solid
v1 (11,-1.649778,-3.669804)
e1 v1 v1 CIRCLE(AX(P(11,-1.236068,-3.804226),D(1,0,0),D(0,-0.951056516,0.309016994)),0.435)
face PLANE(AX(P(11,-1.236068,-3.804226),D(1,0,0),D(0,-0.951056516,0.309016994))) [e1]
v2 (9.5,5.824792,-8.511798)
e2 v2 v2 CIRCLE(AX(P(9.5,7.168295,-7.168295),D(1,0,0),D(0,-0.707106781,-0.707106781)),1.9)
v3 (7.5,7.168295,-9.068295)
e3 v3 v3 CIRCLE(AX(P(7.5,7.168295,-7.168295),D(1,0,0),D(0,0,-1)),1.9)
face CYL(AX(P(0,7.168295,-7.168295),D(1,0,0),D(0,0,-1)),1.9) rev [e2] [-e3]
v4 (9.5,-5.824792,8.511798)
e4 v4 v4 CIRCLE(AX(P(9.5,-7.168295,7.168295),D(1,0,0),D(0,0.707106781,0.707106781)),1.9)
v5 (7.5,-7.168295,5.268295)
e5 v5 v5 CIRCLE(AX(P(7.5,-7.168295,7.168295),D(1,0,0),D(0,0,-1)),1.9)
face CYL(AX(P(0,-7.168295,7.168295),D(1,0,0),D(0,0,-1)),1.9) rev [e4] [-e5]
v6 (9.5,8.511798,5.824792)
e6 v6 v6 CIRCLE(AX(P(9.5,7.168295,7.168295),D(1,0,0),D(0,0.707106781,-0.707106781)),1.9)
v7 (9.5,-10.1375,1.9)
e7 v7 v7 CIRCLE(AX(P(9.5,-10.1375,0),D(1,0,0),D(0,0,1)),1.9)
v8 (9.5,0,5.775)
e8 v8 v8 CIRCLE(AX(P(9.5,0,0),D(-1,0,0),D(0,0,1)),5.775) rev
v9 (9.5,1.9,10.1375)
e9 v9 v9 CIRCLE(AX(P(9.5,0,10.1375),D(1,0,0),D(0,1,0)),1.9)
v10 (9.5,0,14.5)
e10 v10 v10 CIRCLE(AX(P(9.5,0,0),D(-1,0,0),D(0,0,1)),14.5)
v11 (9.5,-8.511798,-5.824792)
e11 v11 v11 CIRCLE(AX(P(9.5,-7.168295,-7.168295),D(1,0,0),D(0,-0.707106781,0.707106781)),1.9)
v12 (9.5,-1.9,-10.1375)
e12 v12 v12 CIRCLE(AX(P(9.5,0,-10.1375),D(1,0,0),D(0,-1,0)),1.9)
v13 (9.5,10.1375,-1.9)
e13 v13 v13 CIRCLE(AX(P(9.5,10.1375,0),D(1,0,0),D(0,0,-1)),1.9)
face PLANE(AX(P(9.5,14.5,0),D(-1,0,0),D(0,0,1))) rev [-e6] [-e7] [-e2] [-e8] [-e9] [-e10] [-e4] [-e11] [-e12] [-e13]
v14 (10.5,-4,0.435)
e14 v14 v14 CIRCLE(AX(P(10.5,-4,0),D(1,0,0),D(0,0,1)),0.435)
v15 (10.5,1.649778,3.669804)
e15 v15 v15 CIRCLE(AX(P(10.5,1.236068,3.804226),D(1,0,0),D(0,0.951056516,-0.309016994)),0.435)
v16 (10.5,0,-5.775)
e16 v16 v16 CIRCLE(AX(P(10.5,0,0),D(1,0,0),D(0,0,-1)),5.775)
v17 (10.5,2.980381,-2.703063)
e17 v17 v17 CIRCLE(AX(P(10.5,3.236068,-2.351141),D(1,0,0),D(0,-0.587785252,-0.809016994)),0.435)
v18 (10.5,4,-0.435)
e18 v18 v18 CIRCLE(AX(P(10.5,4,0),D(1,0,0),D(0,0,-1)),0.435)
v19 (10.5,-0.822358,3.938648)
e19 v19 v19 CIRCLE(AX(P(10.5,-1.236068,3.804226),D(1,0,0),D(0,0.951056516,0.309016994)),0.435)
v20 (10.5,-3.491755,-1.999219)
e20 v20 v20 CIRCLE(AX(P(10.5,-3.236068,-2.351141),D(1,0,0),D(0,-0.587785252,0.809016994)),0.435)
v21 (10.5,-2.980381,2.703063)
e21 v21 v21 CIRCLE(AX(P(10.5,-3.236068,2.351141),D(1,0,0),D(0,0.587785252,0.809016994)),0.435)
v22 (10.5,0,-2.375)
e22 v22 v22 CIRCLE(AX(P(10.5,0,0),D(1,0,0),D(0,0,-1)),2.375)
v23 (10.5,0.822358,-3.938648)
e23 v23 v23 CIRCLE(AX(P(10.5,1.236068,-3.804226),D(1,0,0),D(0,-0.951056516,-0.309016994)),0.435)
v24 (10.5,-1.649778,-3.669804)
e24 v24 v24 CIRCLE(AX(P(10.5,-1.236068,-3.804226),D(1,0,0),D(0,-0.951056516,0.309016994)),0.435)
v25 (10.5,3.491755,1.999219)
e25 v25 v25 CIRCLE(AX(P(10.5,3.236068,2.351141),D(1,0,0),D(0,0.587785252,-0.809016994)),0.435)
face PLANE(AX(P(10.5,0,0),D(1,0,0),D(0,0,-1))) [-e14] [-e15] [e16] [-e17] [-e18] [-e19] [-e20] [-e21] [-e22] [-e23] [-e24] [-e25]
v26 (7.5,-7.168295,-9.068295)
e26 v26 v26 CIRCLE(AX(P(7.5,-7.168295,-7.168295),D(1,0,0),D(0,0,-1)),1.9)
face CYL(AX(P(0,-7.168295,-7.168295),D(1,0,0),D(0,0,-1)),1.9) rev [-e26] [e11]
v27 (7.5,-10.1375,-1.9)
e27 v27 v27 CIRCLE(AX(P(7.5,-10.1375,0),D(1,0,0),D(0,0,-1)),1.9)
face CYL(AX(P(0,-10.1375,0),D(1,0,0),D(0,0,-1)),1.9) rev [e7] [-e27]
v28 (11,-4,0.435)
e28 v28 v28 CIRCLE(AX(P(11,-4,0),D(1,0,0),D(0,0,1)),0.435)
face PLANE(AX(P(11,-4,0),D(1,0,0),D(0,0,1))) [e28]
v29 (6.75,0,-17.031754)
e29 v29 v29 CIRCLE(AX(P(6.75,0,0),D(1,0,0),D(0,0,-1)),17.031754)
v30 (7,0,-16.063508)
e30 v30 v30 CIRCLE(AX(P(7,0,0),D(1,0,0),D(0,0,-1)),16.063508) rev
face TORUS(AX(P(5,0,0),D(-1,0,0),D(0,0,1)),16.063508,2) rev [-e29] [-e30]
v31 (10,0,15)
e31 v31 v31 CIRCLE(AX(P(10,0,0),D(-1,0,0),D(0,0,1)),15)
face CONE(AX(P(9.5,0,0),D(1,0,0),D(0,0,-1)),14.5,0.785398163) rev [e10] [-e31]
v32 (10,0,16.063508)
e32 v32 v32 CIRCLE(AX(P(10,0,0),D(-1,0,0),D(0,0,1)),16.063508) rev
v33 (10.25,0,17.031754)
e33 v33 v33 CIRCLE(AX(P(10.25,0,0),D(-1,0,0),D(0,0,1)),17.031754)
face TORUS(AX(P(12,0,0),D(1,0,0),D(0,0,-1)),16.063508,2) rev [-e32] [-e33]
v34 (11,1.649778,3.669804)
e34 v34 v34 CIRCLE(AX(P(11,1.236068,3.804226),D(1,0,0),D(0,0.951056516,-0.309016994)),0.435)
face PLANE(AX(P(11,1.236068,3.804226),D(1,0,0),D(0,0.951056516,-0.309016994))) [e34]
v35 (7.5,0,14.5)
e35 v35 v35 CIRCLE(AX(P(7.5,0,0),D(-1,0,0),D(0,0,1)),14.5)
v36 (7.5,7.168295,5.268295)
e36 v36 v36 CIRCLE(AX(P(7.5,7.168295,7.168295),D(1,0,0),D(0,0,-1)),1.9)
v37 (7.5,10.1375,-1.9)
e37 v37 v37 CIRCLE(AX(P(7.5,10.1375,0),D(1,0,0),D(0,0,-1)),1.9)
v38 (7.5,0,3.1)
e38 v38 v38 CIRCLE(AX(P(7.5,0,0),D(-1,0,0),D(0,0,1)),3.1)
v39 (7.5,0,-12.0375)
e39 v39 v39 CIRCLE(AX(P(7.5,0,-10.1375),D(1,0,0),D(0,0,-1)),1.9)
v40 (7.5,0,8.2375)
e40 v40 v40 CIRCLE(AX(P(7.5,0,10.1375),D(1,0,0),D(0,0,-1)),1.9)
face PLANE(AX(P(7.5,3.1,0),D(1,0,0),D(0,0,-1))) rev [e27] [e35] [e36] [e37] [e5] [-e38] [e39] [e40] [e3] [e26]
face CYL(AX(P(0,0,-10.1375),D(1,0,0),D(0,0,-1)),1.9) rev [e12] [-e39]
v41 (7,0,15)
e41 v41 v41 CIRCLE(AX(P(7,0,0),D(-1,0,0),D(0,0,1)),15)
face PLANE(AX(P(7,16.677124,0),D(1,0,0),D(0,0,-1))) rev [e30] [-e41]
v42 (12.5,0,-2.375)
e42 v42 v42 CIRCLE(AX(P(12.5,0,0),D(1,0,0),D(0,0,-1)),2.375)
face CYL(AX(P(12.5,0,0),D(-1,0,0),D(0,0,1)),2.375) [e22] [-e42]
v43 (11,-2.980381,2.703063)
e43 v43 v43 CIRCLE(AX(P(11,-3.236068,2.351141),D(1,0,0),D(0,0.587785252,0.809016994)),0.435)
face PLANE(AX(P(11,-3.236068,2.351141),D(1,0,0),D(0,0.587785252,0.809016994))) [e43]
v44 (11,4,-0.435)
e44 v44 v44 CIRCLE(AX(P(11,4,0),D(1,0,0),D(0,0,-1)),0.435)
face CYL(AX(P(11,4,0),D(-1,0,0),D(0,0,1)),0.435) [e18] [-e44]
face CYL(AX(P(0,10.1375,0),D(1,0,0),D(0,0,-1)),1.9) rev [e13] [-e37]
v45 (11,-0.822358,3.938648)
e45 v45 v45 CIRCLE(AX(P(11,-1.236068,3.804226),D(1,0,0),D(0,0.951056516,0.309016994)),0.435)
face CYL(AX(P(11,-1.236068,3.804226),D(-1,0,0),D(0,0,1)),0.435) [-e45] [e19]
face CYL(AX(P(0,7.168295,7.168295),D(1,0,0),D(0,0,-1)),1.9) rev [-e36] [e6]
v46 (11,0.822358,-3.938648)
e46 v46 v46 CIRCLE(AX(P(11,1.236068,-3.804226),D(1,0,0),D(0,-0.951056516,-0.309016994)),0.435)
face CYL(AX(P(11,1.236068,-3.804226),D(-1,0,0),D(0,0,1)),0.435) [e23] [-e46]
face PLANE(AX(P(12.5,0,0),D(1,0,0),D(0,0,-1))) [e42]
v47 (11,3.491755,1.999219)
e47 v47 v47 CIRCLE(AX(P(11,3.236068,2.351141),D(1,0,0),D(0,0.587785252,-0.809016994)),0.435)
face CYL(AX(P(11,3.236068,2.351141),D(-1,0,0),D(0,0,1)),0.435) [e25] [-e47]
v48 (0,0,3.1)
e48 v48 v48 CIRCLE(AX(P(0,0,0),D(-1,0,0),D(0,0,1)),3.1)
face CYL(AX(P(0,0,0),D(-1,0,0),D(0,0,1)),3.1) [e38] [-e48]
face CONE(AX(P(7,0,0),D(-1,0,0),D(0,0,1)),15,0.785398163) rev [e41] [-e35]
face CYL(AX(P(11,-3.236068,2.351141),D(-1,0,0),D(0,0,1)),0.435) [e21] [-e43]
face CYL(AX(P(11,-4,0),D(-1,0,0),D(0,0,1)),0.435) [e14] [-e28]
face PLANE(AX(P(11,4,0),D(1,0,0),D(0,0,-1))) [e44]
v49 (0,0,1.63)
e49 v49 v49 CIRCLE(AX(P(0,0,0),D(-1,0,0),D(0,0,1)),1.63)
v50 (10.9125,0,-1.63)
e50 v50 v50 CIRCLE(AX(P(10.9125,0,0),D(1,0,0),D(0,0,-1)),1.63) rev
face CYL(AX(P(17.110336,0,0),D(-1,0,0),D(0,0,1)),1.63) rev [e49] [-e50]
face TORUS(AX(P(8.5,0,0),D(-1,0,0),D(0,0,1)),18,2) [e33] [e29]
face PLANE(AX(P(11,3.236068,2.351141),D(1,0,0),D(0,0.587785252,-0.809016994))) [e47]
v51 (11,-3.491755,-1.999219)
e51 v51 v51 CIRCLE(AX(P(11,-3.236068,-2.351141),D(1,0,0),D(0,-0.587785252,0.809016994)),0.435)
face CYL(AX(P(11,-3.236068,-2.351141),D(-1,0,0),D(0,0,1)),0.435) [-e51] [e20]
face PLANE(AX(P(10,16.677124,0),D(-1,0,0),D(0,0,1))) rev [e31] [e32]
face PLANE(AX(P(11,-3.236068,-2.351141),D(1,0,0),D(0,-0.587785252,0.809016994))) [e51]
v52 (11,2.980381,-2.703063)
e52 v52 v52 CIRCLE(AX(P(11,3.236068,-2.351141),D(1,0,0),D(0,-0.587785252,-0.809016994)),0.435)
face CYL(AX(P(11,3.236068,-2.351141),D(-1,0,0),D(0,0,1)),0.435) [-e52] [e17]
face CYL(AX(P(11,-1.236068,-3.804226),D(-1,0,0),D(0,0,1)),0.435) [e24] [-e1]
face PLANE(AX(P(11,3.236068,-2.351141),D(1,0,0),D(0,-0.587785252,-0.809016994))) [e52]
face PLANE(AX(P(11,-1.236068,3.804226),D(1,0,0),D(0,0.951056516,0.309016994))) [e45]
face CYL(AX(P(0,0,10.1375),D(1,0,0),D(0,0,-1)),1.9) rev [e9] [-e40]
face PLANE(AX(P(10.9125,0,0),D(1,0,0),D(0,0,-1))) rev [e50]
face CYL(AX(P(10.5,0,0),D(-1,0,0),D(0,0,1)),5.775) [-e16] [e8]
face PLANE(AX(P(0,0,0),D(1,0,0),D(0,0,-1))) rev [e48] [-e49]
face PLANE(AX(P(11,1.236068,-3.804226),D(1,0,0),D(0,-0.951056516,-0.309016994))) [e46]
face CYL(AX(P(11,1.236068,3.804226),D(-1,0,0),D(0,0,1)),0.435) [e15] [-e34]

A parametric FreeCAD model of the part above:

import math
import FreeCAD as App
import Part
import Sketcher
from FreeCAD import Vector


def edges_at(feature, points):
    """Names of the edges that pass closest to the given points."""
    edges = feature.Shape.Edges
    near = lambda p: min(range(len(edges)), key=lambda i: edges[i].distToShape(Part.Vertex(*p))[0])
    return sorted({f"Edge{near(p) + 1}" for p in points})

doc = App.newDocument("Part")
params = doc.addObject("Spreadsheet::Sheet", "Params")
for row, (alias, value) in enumerate([
    ("sketch1_radius", "2 mm"),
    ("sketch1_width", "9.5 mm"),
    ("sketch1_width2", "7.5 mm"),
    ("sketch1_height", "14.5 mm"),
    ("sketch1_height2", "11.4 mm"),
    ("revolution_angle", "360 deg"),
    ("fillet_radius", "2 mm"),
    ("sketch2_diameter", "11.55 mm"),
    ("pad1_length", "1 mm"),
    ("sketch3_diameter", "4.75 mm"),
    ("pad2_length", "2 mm"),
    ("sketch4_diameter", "0.87 mm"),
    ("pad3_length", "0.5 mm"),
    ("sketch5_diameter", "3.8 mm"),
    ("sketch6_diameter", "3.26 mm"),
    ("pocket2_length", "10.9125 mm"),
], start=1):
    params.set(f"A{row}", alias)
    params.set(f"B{row}", "=" + value)
    params.setAlias(f"B{row}", alias)

body = doc.addObject("PartDesign::Body", "Body")

# Sketch on XY plane
sketch1 = body.newObject("Sketcher::SketchObject", "Sketch")
sketch1.AttachmentSupport = (doc.getObject("XY_Plane"), [""])
sketch1.MapMode = "FlatFace"
sketch1.addGeometry([
    Part.LineSegment(Vector(0, 0, 0), Vector(9.5, 0, 0)),  # 0
    Part.LineSegment(Vector(9.5, 0, 0), Vector(9.5, 14.5, 0)),  # 1
    Part.LineSegment(Vector(9.5, 14.5, 0), Vector(10, 15, 0)),  # 2
    Part.LineSegment(Vector(10, 15, 0), Vector(10, 16.677124, 0)),  # 3
    Part.ArcOfCircle(Part.Circle(Vector(8.5, 18, 0), Vector(0, 0, 1), 2), math.radians(-41.409622), math.radians(221.409622)),  # 4
    Part.LineSegment(Vector(7, 16.677124, 0), Vector(7, 15, 0)),  # 5
    Part.LineSegment(Vector(7, 15, 0), Vector(7.5, 14.5, 0)),  # 6
    Part.LineSegment(Vector(7.5, 14.5, 0), Vector(7.5, 3.1, 0)),  # 7
    Part.LineSegment(Vector(7.5, 3.1, 0), Vector(0, 3.1, 0)),  # 8
    Part.LineSegment(Vector(0, 3.1, 0), Vector(0, 0, 0)),  # 9
], False)
sketch1.addConstraint([
    Sketcher.Constraint("Coincident", 0, 2, 1, 1),
    Sketcher.Constraint("Coincident", 1, 2, 2, 1),
    Sketcher.Constraint("Coincident", 2, 2, 3, 1),
    Sketcher.Constraint("Coincident", 3, 2, 4, 1),
    Sketcher.Constraint("Coincident", 4, 2, 5, 1),
    Sketcher.Constraint("Coincident", 5, 2, 6, 1),
    Sketcher.Constraint("Coincident", 6, 2, 7, 1),
    Sketcher.Constraint("Coincident", 7, 2, 8, 1),
    Sketcher.Constraint("Coincident", 8, 2, 9, 1),
    Sketcher.Constraint("Coincident", 9, 2, 0, 1),
    Sketcher.Constraint("Horizontal", 0),
    Sketcher.Constraint("Vertical", 1),
    Sketcher.Constraint("Vertical", 3),
    Sketcher.Constraint("Vertical", 5),
    Sketcher.Constraint("Vertical", 7),
    Sketcher.Constraint("Horizontal", 8),
    Sketcher.Constraint("Vertical", 9),
    Sketcher.Constraint("Coincident", 9, 2, -1, 1),
    Sketcher.Constraint("Perpendicular", 2, 6),
    Sketcher.Constraint("Horizontal", 3, 2, 4, 2),
    Sketcher.Constraint("Horizontal", 2, 2, 5, 2),
    Sketcher.Constraint("Horizontal", 1, 2, 6, 2),
    Sketcher.Constraint("Equal", 2, 6),
    Sketcher.Constraint("Radius", 4, 2.0),
    Sketcher.Constraint("DistanceX", 0, 1, 0, 2, 9.5),
    Sketcher.Constraint("DistanceX", 8, 2, 8, 1, 7.5),
    Sketcher.Constraint("DistanceY", 1, 1, 1, 2, 14.5),
    Sketcher.Constraint("DistanceY", 7, 2, 7, 1, 11.4),
    Sketcher.Constraint("DistanceY", -1, 1, 4, 3, 18.0),
    Sketcher.Constraint("DistanceX", -1, 1, 2, 2, 10.0),
])
sketch1.setExpression("Constraints[23]", "Params.sketch1_radius")
sketch1.setExpression("Constraints[24]", "Params.sketch1_width")
sketch1.setExpression("Constraints[25]", "Params.sketch1_width2")
sketch1.setExpression("Constraints[26]", "Params.sketch1_height")
sketch1.setExpression("Constraints[27]", "Params.sketch1_height2")
revolution = body.newObject("PartDesign::Revolution", "Revolution")
revolution.Profile = sketch1
revolution.ReferenceAxis = (sketch1, ["H_Axis"])
revolution.setExpression("Angle", "Params.revolution_angle")
doc.recompute()

fillet = body.newObject("PartDesign::Fillet", "Fillet")
fillet.Base = (revolution, edges_at(revolution, [(7, 0, -16.677), (10, 0, -16.677)]))
fillet.setExpression("Radius", "Params.fillet_radius")

# Sketch on YZ plane
sketch2 = body.newObject("Sketcher::SketchObject", "Sketch001")
sketch2.AttachmentSupport = (doc.getObject("YZ_Plane"), [""])
sketch2.MapMode = "FlatFace"
sketch2.AttachmentOffset = App.Placement(Vector(0, 0, 9.5), App.Rotation())
sketch2.addGeometry(Part.Circle(Vector(0, 0, 0), Vector(0, 0, 1), 5.775), False)
sketch2.addConstraint([
    Sketcher.Constraint("Coincident", 0, 3, -1, 1),
    Sketcher.Constraint("Diameter", 0, 11.55),
])
sketch2.setExpression("Constraints[1]", "Params.sketch2_diameter")
pad1 = body.newObject("PartDesign::Pad", "Pad")
pad1.Profile = sketch2
pad1.setExpression("Length", "Params.pad1_length")

# Sketch on YZ plane
sketch3 = body.newObject("Sketcher::SketchObject", "Sketch002")
sketch3.AttachmentSupport = (doc.getObject("YZ_Plane"), [""])
sketch3.MapMode = "FlatFace"
sketch3.AttachmentOffset = App.Placement(Vector(0, 0, 10.5), App.Rotation())
sketch3.addGeometry(Part.Circle(Vector(0, 0, 0), Vector(0, 0, 1), 2.375), False)
sketch3.addConstraint([
    Sketcher.Constraint("Coincident", 0, 3, -1, 1),
    Sketcher.Constraint("Diameter", 0, 4.75),
])
sketch3.setExpression("Constraints[1]", "Params.sketch3_diameter")
pad2 = body.newObject("PartDesign::Pad", "Pad001")
pad2.Profile = sketch3
pad2.setExpression("Length", "Params.pad2_length")

# Sketch on YZ plane
sketch4 = body.newObject("Sketcher::SketchObject", "Sketch003")
sketch4.AttachmentSupport = (doc.getObject("YZ_Plane"), [""])
sketch4.MapMode = "FlatFace"
sketch4.AttachmentOffset = App.Placement(Vector(0, 0, 10.5), App.Rotation())
sketch4.addGeometry(Part.Circle(Vector(4, 0, 0), Vector(0, 0, 1), 0.435), False)
sketch4.addConstraint([
    Sketcher.Constraint("PointOnObject", 0, 3, -1),
    Sketcher.Constraint("Diameter", 0, 0.87),
    Sketcher.Constraint("DistanceX", -1, 1, 0, 3, 4.0),
])
sketch4.setExpression("Constraints[1]", "Params.sketch4_diameter")
pad3 = body.newObject("PartDesign::Pad", "Pad002")
pad3.Profile = sketch4
pad3.setExpression("Length", "Params.pad3_length")
doc.recompute()

polarpattern = body.newObject("PartDesign::PolarPattern", "PolarPattern")
polarpattern.Originals = [pad3]
polarpattern.Axis = (doc.getObject("X_Axis"), [""])
polarpattern.Angle = 360
polarpattern.Occurrences = 10
body.Tip = polarpattern

# Sketch on YZ plane
sketch5 = body.newObject("Sketcher::SketchObject", "Sketch004")
sketch5.AttachmentSupport = (doc.getObject("YZ_Plane"), [""])
sketch5.MapMode = "FlatFace"
sketch5.AttachmentOffset = App.Placement(Vector(0, 0, 9.5), App.Rotation())
sketch5.addGeometry(Part.Circle(Vector(10.1375, 0, 0), Vector(0, 0, 1), 1.9), False)
sketch5.addConstraint([
    Sketcher.Constraint("PointOnObject", 0, 3, -1),
    Sketcher.Constraint("Diameter", 0, 3.8),
    Sketcher.Constraint("DistanceX", -1, 1, 0, 3, 10.1375),
])
sketch5.setExpression("Constraints[1]", "Params.sketch5_diameter")
pocket1 = body.newObject("PartDesign::Pocket", "Pocket")
pocket1.Profile = sketch5
pocket1.Type = "ThroughAll"
doc.recompute()

polarpattern2 = body.newObject("PartDesign::PolarPattern", "PolarPattern001")
polarpattern2.Originals = [pocket1]
polarpattern2.Axis = (doc.getObject("X_Axis"), [""])
polarpattern2.Angle = 360
polarpattern2.Occurrences = 8
body.Tip = polarpattern2

# Sketch on YZ plane
sketch6 = body.newObject("Sketcher::SketchObject", "Sketch005")
sketch6.AttachmentSupport = (doc.getObject("YZ_Plane"), [""])
sketch6.MapMode = "FlatFace"
sketch6.addGeometry(Part.Circle(Vector(0, 0, 0), Vector(0, 0, 1), 1.63), False)
sketch6.addConstraint([
    Sketcher.Constraint("Coincident", 0, 3, -1, 1),
    Sketcher.Constraint("Diameter", 0, 3.26),
])
sketch6.setExpression("Constraints[1]", "Params.sketch6_diameter")
pocket2 = body.newObject("PartDesign::Pocket", "Pocket001")
pocket2.Profile = sketch6
pocket2.setExpression("Length", "Params.pocket2_length")
pocket2.Reversed = True

doc.recompute()
